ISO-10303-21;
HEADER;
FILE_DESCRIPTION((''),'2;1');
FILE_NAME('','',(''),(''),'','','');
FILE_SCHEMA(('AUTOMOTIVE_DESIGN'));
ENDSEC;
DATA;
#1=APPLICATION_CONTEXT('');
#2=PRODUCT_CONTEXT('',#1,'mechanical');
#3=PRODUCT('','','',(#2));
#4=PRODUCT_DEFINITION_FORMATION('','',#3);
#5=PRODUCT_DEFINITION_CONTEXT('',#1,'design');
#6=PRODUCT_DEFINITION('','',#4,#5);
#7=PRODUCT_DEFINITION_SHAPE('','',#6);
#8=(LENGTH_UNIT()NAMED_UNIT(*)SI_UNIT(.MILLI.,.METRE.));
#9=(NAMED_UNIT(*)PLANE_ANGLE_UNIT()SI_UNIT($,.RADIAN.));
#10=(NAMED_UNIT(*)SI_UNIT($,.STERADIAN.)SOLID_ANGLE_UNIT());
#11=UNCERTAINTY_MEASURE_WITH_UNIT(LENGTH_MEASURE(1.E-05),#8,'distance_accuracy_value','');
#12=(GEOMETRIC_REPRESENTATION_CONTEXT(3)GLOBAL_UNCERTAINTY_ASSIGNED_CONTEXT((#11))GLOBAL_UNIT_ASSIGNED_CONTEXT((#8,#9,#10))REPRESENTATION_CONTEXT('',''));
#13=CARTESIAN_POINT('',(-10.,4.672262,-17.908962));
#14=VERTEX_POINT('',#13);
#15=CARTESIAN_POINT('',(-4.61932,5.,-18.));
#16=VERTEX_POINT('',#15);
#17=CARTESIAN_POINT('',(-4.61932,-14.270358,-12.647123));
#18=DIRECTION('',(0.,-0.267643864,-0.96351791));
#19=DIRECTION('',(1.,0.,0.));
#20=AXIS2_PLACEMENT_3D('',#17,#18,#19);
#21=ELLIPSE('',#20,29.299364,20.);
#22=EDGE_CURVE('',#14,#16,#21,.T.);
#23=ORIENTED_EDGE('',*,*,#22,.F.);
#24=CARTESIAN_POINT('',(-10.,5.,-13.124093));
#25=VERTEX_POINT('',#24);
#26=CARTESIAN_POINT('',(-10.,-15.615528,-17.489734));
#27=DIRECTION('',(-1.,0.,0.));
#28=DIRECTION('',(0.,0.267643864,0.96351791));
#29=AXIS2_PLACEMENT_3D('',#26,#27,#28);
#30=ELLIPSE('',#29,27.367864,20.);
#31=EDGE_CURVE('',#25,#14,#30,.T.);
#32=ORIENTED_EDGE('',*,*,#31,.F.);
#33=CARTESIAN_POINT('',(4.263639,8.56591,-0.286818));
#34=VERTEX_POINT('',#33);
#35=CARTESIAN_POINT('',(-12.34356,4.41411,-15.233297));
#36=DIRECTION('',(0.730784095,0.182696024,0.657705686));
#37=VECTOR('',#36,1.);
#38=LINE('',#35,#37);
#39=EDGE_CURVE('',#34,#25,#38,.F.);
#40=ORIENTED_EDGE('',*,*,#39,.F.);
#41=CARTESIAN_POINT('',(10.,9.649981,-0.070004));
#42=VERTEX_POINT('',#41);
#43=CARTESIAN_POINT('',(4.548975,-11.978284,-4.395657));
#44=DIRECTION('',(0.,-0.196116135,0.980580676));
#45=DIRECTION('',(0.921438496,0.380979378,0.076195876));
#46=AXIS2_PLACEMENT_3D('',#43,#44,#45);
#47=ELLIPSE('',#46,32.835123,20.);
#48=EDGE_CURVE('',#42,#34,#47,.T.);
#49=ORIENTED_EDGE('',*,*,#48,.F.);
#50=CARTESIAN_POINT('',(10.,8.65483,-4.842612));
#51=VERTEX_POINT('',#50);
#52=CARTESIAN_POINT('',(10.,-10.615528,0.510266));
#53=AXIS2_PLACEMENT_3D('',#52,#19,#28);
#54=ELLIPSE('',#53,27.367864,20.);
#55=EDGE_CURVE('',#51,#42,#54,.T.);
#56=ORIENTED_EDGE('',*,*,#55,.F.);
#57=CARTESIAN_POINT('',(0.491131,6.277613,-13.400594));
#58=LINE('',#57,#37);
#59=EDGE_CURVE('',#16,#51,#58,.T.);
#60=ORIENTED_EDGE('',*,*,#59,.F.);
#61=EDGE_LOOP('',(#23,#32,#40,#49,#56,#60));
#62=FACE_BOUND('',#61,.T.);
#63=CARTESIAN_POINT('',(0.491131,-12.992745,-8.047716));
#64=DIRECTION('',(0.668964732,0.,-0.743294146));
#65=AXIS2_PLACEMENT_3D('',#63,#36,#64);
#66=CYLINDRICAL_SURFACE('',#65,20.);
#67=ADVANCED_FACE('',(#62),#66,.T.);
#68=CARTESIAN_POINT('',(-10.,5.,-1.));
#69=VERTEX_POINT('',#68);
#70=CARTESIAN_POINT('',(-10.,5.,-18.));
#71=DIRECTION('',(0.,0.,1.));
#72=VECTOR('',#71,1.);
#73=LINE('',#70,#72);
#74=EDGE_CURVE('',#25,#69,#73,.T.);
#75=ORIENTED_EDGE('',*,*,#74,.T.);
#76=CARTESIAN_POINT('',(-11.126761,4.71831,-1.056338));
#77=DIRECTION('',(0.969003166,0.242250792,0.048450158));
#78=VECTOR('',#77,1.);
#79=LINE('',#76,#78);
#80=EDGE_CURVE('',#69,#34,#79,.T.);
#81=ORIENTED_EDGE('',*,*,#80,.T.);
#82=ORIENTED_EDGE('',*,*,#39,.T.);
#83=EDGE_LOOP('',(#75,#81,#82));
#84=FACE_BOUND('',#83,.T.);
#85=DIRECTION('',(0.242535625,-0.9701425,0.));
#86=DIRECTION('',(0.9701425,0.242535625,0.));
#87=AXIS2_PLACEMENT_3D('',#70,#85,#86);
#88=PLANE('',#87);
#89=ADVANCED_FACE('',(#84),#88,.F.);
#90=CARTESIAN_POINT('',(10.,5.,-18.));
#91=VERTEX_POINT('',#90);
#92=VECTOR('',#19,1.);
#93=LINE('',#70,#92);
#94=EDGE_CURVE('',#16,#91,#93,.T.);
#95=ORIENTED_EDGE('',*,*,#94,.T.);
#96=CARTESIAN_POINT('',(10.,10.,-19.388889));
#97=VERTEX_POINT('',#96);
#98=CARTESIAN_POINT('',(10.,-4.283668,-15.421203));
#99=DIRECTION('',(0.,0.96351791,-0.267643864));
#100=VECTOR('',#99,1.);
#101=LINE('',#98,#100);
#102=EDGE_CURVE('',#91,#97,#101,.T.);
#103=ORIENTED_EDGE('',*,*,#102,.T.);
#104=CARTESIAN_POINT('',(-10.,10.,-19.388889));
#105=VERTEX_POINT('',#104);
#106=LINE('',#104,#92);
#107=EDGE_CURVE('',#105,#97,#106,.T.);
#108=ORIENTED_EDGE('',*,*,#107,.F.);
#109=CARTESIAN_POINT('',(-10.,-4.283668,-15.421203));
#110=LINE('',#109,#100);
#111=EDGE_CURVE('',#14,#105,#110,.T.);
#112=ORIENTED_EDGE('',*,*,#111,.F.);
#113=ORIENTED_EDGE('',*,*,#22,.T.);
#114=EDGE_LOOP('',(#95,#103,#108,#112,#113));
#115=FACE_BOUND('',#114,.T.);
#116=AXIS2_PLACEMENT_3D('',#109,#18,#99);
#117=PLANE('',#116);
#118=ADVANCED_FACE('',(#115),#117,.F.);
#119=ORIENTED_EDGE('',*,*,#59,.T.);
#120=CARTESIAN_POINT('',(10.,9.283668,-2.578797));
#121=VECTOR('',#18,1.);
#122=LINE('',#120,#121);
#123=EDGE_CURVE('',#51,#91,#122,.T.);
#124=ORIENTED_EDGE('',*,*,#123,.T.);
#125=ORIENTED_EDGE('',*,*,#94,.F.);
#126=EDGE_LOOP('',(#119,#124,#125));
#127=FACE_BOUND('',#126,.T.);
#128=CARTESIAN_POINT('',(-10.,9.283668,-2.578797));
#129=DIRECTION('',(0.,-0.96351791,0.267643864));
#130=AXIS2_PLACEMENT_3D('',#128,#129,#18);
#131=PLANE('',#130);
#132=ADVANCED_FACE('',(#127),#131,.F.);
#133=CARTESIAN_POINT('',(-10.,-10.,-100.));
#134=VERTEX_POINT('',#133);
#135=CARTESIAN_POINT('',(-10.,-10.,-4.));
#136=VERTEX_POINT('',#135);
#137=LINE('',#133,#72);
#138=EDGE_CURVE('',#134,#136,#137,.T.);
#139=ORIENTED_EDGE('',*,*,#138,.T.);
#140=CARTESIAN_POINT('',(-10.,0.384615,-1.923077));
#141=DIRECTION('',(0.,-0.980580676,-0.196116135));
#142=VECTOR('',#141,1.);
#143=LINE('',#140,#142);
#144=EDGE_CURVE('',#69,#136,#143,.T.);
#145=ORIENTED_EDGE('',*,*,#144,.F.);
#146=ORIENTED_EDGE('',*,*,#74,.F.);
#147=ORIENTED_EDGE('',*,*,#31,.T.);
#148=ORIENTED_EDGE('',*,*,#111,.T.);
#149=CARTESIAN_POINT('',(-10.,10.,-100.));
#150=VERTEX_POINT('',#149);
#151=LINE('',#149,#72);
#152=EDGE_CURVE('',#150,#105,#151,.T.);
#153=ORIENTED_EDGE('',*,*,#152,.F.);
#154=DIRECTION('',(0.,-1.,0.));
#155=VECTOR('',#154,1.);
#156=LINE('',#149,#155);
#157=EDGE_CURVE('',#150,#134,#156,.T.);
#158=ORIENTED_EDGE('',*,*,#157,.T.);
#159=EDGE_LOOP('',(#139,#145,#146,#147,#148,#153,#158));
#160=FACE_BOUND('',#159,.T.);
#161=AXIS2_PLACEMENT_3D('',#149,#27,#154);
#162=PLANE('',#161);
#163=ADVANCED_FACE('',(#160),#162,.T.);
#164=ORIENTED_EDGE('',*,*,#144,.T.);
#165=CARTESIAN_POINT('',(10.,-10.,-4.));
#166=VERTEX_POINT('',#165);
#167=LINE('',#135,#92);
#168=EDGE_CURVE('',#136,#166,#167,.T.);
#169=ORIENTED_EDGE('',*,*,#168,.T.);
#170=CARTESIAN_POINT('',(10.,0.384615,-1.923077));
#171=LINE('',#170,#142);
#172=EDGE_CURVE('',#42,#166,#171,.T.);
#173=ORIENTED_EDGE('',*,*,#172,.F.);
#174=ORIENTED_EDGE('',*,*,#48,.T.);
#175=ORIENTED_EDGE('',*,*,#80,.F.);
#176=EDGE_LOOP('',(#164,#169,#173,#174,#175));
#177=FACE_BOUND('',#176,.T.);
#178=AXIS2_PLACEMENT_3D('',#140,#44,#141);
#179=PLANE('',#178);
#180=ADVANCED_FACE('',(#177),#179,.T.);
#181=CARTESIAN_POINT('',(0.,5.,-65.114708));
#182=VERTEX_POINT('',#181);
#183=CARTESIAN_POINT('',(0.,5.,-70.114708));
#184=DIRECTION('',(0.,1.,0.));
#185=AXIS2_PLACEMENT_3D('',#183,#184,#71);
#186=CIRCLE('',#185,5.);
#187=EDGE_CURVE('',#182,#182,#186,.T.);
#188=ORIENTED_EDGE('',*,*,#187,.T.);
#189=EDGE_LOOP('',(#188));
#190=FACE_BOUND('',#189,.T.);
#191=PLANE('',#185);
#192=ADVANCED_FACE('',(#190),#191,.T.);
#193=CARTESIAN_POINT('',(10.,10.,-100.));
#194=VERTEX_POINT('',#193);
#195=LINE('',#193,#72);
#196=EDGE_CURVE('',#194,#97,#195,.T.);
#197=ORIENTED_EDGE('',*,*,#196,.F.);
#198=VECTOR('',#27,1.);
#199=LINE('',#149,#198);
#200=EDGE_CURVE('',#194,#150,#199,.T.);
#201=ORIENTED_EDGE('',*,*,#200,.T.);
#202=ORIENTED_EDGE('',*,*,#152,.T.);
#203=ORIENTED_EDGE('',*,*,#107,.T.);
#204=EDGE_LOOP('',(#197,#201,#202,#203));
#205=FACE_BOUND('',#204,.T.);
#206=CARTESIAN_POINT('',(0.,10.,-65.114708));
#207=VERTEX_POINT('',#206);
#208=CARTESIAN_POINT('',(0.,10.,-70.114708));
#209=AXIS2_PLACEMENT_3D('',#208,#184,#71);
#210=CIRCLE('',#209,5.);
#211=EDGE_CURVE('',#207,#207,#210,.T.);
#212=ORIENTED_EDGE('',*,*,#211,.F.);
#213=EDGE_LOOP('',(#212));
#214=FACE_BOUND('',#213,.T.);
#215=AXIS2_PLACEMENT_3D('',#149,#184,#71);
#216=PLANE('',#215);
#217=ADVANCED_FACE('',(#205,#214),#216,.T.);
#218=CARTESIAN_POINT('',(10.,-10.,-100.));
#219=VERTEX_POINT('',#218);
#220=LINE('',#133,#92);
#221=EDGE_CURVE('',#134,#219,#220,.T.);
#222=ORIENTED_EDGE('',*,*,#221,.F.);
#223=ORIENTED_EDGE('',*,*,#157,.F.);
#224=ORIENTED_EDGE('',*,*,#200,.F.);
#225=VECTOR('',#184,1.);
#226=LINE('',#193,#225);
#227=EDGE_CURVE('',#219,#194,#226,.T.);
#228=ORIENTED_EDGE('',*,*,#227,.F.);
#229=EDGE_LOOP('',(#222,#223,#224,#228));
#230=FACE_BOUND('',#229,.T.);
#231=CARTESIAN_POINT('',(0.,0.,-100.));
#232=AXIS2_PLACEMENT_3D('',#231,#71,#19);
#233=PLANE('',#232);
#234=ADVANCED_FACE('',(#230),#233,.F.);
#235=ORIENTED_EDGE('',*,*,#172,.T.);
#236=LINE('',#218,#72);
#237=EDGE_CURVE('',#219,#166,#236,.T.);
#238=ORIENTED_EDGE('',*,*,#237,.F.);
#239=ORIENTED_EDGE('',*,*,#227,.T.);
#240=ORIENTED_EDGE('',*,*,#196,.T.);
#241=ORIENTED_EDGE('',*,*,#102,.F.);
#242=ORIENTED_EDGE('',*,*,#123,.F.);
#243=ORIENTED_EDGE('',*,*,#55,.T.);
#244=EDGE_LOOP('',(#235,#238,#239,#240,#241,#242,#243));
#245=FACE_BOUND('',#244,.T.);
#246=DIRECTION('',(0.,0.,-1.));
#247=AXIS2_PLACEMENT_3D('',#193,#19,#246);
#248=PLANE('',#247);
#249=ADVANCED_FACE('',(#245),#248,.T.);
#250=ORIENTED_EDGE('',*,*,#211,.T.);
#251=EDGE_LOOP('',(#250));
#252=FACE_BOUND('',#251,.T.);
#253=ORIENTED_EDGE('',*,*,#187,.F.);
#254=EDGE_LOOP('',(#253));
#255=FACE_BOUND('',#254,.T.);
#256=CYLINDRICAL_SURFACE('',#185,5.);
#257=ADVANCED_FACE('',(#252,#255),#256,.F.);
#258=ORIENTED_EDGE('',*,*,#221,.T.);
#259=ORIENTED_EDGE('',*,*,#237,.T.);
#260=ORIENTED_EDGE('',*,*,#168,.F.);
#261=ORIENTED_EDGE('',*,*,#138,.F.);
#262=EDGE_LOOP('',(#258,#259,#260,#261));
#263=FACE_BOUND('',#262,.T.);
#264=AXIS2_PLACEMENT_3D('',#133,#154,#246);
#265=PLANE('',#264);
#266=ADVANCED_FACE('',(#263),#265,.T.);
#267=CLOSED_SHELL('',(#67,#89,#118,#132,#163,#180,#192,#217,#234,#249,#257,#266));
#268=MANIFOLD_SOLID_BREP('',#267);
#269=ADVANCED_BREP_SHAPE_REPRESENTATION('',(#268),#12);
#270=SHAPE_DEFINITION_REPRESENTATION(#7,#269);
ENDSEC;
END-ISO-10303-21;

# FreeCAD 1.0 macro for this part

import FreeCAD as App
import Part
import Sketcher


def edges_at(feature, points):
    """Names of the edges that pass closest to the given points."""
    edges = feature.Shape.Edges
    near = lambda p: min(range(len(edges)), key=lambda i: edges[i].distToShape(Part.Vertex(*p))[0])
    return sorted({f"Edge{near(p) + 1}" for p in points})


def add_polygon(sketch, points):
    """Adds a closed chain of lines whose ends are joined by coincident constraints."""
    first, n = sketch.GeometryCount, len(points)
    for a, b in zip(points, points[1:] + points[:1]):
        sketch.addGeometry(Part.LineSegment(App.Vector(*a, 0), App.Vector(*b, 0)), False)
    for i in range(n):
        sketch.addConstraint(Sketcher.Constraint("Coincident", first + i, 2, first + (i + 1) % n, 1))

doc = App.newDocument("Part")
body = doc.addObject("PartDesign::Body", "Body")

sketch1 = doc.addObject("Sketcher::SketchObject", "Sketch")
body.addObject(sketch1)
sketch1.AttachmentSupport = (doc.XY_Plane, [""])
sketch1.MapMode = "FlatFace"
add_polygon(sketch1, [(-10, 10), (-10, -10), (10, -10), (10, 10)])
sketch1.addConstraint(Sketcher.Constraint("Vertical", 0))
sketch1.addConstraint(Sketcher.Constraint("Horizontal", 1))
sketch1.addConstraint(Sketcher.Constraint("Vertical", 2))
sketch1.addConstraint(Sketcher.Constraint("Horizontal", 3))
sketch1.addConstraint(Sketcher.Constraint("Symmetric", 0, 2, 2, 2, -1, 1))
sketch1.addConstraint(Sketcher.Constraint("Equal", 3, 0))
sketch1.addConstraint(Sketcher.Constraint("DistanceX", 1, 1, 1, 2, 20.0))
pad1 = doc.addObject("PartDesign::Pad", "Pad")
body.addObject(pad1)
pad1.Profile = sketch1
pad1.Length = 100
pad1.Reversed = True

sketch2 = doc.addObject("Sketcher::SketchObject", "Sketch001")
body.addObject(sketch2)
sketch2.AttachmentSupport = (doc.YZ_Plane, [""])
sketch2.MapMode = "FlatFace"
sketch2.AttachmentOffset = App.Placement(App.Vector(0, 0, 10), App.Rotation())
add_polygon(sketch2, [(10, -19.4), (10, 0), (5, -18)])
add_polygon(sketch2, [(-10, -4), (10, 0), (-10, 0)])
sketch2.addConstraint(Sketcher.Constraint("Vertical", 0))
sketch2.addConstraint(Sketcher.Constraint("Horizontal", 4))
sketch2.addConstraint(Sketcher.Constraint("Vertical", 5))
sketch2.addConstraint(Sketcher.Constraint("Coincident", 3, 2, 0, 2))
sketch2.addConstraint(Sketcher.Constraint("Symmetric", 0, 2, 4, 2, -1, 1))
sketch2.addConstraint(Sketcher.Constraint("Perpendicular", 1, 2))
sketch2.addConstraint(Sketcher.Constraint("DistanceX", 4, 2, 4, 1, 20.0))
sketch2.addConstraint(Sketcher.Constraint("DistanceY", 5, 2, 5, 1, 4.0))
sketch2.addConstraint(Sketcher.Constraint("DistanceX", -1, 1, 1, 2, 5.0))
sketch2.addConstraint(Sketcher.Constraint("DistanceY", 1, 2, -1, 1, 18.0))
pocket1 = doc.addObject("PartDesign::Pocket", "Pocket")
body.addObject(pocket1)
pocket1.Profile = sketch2
pocket1.Length = 20

sketch3 = doc.addObject("Sketcher::SketchObject", "Sketch002")
body.addObject(sketch3)
sketch3.AttachmentSupport = (doc.XY_Plane, [""])
sketch3.MapMode = "FlatFace"
add_polygon(sketch3, [(-10, 5), (10, 10), (-10, 10)])
sketch3.addConstraint(Sketcher.Constraint("Horizontal", 1))
sketch3.addConstraint(Sketcher.Constraint("Vertical", 2))
sketch3.addConstraint(Sketcher.Constraint("DistanceX", 1, 2, 1, 1, 20.0))
sketch3.addConstraint(Sketcher.Constraint("DistanceY", 2, 2, 2, 1, 5.0))
sketch3.addConstraint(Sketcher.Constraint("DistanceX", -1, 1, 0, 2, 10.0))
sketch3.addConstraint(Sketcher.Constraint("DistanceY", -1, 1, 0, 2, 10.0))
pocket2 = doc.addObject("PartDesign::Pocket", "Pocket001")
body.addObject(pocket2)
pocket2.Profile = sketch3
pocket2.Length = 18
doc.recompute()

fillet = doc.addObject("PartDesign::Fillet", "Fillet")
body.addObject(fillet)
fillet.Base = (pocket2, edges_at(pocket2, [(0, 7.5, -9)]))
fillet.Radius = 20

sketch4 = doc.addObject("Sketcher::SketchObject", "Sketch003")
body.addObject(sketch4)
sketch4.AttachmentSupport = (doc.XZ_Plane, [""])
sketch4.MapMode = "FlatFace"
sketch4.AttachmentOffset = App.Placement(App.Vector(0, 0, -10), App.Rotation())
sketch4.addGeometry(Part.Circle(App.Vector(0, -70, 0), App.Vector(0, 0, 1), 5), False)
sketch4.addConstraint(Sketcher.Constraint("PointOnObject", 0, 3, -2))
sketch4.addConstraint(Sketcher.Constraint("Diameter", 0, 10.0))
sketch4.addConstraint(Sketcher.Constraint("DistanceY", 0, 3, -1, 1, 70.114708))
pocket3 = doc.addObject("PartDesign::Pocket", "Pocket002")
body.addObject(pocket3)
pocket3.Profile = sketch4
pocket3.Length = 5
pocket3.Reversed = True

doc.recompute()
